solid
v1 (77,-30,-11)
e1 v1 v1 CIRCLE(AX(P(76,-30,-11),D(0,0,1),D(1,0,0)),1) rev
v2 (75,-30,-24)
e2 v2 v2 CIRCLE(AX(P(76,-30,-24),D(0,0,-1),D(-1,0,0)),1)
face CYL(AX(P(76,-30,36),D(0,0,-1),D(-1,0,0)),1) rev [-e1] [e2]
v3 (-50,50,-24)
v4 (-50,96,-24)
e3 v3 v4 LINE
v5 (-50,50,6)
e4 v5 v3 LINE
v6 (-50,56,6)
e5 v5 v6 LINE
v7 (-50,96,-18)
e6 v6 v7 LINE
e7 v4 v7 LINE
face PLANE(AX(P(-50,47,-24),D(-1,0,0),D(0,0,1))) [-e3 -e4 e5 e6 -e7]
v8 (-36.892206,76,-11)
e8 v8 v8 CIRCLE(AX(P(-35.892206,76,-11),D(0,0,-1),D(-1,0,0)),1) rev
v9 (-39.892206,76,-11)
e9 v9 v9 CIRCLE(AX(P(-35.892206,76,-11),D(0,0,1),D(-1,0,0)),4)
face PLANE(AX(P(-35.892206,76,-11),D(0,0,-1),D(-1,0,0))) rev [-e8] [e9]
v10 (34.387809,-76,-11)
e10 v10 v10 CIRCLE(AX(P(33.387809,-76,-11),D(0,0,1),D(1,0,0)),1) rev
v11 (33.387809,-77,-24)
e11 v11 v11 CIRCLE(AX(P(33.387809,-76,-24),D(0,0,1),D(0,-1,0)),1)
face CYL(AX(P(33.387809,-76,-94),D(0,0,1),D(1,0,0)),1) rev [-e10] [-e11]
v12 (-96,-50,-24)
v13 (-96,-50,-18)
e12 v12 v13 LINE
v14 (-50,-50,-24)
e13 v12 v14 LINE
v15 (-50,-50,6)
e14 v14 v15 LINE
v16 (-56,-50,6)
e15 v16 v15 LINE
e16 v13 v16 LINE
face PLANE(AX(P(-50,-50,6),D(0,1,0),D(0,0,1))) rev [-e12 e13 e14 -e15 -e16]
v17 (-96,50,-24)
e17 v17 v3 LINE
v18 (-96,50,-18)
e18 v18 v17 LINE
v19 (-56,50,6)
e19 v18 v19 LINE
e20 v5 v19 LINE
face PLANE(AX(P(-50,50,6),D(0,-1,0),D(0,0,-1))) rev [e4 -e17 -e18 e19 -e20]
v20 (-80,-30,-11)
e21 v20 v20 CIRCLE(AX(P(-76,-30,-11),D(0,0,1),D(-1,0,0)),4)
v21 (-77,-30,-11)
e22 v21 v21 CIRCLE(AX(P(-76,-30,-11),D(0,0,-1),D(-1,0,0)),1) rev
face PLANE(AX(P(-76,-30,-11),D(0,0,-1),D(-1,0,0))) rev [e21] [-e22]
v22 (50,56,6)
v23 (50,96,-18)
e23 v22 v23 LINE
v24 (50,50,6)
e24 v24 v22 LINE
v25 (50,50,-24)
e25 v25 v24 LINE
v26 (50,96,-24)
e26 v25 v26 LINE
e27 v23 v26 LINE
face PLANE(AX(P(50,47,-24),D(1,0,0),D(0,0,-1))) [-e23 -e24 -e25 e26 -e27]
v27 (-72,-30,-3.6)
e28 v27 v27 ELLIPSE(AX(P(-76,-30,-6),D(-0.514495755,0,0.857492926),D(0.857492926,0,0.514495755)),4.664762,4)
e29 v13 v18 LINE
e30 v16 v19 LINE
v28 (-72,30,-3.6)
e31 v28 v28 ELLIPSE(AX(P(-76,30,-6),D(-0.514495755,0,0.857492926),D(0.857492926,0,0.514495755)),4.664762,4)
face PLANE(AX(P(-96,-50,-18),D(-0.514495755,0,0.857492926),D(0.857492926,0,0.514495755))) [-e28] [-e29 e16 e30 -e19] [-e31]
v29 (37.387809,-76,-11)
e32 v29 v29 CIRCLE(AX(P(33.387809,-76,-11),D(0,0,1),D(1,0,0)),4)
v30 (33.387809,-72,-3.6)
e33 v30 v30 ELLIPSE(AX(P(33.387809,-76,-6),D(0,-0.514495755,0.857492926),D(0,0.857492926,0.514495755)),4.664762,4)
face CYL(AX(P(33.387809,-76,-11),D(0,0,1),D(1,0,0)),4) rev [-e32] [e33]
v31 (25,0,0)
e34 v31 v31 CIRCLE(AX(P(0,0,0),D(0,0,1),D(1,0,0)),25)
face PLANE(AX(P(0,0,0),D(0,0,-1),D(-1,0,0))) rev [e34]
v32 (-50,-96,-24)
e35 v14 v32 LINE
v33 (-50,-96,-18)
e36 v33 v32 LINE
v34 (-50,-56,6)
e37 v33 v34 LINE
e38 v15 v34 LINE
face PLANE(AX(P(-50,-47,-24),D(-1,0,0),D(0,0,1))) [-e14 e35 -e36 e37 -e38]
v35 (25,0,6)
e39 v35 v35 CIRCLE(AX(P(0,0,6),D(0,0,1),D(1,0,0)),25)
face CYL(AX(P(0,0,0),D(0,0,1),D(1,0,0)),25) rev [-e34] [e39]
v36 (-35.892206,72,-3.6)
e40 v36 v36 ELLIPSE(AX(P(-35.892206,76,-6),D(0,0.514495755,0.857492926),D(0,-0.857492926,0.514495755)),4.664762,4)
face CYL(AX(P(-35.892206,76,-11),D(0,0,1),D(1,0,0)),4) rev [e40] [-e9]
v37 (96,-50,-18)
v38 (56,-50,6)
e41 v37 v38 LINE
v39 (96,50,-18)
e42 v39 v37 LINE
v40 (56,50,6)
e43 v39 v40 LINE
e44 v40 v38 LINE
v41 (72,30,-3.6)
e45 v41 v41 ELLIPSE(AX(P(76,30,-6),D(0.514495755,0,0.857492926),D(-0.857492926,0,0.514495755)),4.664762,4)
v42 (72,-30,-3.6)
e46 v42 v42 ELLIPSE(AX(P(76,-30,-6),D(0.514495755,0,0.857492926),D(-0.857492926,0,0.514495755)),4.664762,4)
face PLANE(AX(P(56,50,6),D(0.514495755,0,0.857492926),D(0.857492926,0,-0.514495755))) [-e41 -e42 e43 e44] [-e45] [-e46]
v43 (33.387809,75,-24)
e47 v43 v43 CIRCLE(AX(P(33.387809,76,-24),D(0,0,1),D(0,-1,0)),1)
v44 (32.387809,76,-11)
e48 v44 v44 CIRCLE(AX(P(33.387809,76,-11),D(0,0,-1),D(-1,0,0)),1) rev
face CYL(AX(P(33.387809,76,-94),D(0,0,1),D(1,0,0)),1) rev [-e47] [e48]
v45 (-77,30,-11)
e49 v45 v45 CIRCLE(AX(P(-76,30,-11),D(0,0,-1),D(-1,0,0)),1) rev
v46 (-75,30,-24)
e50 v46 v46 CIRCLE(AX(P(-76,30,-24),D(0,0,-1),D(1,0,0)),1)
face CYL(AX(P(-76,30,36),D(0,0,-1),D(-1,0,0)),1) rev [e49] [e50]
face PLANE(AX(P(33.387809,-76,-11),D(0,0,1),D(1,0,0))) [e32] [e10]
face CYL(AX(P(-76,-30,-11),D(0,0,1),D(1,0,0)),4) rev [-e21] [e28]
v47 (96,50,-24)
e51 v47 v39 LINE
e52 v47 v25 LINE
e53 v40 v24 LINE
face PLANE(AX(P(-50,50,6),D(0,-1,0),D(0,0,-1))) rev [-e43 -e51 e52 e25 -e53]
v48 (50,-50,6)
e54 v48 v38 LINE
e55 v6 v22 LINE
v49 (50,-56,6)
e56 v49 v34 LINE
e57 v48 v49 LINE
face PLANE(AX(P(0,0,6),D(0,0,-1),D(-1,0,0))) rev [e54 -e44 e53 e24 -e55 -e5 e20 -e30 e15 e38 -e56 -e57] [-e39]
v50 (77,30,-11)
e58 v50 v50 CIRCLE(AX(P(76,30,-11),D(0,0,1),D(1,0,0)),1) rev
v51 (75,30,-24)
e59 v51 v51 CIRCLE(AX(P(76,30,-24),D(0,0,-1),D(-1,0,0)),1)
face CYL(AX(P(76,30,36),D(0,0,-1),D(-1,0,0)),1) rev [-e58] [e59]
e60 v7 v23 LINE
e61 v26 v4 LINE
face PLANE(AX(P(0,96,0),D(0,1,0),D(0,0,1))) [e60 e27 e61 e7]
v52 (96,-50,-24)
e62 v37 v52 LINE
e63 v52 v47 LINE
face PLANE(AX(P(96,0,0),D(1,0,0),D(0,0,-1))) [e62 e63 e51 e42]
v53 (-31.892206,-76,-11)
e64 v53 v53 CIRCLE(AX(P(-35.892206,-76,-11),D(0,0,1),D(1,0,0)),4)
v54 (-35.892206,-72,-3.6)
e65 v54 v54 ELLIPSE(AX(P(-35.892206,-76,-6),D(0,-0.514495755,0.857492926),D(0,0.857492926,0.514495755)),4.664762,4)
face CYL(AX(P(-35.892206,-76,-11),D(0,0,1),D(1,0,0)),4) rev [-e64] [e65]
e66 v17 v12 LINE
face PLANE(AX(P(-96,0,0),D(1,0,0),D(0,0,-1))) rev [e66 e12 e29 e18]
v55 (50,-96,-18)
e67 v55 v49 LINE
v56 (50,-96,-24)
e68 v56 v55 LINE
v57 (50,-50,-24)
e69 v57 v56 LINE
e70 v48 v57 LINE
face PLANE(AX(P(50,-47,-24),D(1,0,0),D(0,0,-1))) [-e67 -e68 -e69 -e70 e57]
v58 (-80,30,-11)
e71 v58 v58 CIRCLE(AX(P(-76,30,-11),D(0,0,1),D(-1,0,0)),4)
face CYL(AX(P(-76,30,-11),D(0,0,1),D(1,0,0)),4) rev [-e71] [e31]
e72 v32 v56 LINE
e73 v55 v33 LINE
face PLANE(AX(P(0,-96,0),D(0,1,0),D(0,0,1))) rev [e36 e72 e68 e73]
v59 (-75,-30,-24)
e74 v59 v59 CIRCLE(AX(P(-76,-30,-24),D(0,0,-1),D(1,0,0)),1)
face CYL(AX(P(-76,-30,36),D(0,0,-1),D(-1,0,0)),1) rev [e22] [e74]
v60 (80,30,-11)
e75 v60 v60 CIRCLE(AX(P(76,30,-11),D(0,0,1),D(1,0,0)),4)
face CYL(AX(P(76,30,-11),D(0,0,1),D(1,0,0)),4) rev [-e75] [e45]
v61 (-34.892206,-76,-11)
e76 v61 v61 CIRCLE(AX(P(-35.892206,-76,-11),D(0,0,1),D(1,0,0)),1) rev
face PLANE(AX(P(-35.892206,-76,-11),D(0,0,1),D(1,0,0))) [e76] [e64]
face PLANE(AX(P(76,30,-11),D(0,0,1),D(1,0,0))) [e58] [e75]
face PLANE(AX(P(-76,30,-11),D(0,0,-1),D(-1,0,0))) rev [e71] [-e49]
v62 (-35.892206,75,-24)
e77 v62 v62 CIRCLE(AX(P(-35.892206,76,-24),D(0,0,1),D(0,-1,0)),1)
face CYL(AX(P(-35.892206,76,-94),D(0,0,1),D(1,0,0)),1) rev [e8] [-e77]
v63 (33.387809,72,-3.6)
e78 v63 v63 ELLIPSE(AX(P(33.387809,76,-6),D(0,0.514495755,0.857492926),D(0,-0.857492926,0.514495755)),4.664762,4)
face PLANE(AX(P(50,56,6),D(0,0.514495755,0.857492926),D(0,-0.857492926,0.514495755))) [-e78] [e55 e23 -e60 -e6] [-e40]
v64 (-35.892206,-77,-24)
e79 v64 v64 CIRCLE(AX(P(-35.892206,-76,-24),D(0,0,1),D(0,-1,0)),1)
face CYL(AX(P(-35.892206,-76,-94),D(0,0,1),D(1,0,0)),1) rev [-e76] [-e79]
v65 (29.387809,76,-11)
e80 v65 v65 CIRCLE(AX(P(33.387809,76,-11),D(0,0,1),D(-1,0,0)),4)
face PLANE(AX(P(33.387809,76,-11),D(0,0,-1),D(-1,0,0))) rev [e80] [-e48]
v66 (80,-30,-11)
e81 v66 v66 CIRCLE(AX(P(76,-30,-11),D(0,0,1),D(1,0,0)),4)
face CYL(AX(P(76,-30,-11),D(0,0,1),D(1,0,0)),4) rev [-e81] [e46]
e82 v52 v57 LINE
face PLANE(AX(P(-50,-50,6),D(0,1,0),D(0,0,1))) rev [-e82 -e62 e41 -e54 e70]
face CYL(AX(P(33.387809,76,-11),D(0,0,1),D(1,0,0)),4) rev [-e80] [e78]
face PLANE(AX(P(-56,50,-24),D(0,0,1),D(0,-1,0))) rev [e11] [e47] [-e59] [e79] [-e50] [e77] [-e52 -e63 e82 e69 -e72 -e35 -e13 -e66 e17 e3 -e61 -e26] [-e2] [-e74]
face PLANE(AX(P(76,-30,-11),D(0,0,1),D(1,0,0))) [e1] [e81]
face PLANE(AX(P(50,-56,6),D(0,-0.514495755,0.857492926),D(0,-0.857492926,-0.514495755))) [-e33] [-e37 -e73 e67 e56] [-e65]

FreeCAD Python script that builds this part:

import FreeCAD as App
import Part
import Sketcher
Q = App.Units.Quantity

doc = App.newDocument("Part")
body = doc.addObject("PartDesign::Body", "Body")

# Sketch on XY plane
sketch1 = body.newObject("Sketcher::SketchObject", "Sketch")
sketch1.AttachmentSupport = (doc.getObject("XY_Plane"), [""])
sketch1.MapMode = "FlatFace"
sketch1.addGeometry([
    Part.LineSegment(App.Vector(-50, 50, 0), App.Vector(-50, -50, 0)),
    Part.LineSegment(App.Vector(-50, -50, 0), App.Vector(50, -50, 0)),
    Part.LineSegment(App.Vector(50, -50, 0), App.Vector(50, 50, 0)),
    Part.LineSegment(App.Vector(50, 50, 0), App.Vector(-50, 50, 0)),
], False)
sketch1.addConstraint([
    Sketcher.Constraint("Coincident", 0, 2, 1, 1),
    Sketcher.Constraint("Coincident", 1, 2, 2, 1),
    Sketcher.Constraint("Coincident", 2, 2, 3, 1),
    Sketcher.Constraint("Coincident", 3, 2, 0, 1),
    Sketcher.Constraint("Vertical", 0),
    Sketcher.Constraint("Horizontal", 1),
    Sketcher.Constraint("Vertical", 2),
    Sketcher.Constraint("Horizontal", 3),
    Sketcher.Constraint("Symmetric", 0, 2, 2, 2, -1, 1),
    Sketcher.Constraint("Equal", 3, 0),
    Sketcher.Constraint("DistanceX", 1, 1, 1, 2, Q("100 mm")),
])
pad1 = body.newObject("PartDesign::Pad", "Pad")
pad1.Profile = sketch1
pad1.Length = 6

# Sketch on YZ plane
sketch2 = body.newObject("Sketcher::SketchObject", "Sketch001")
sketch2.AttachmentSupport = (doc.getObject("YZ_Plane"), [""])
sketch2.MapMode = "FlatFace"
sketch2.AttachmentOffset = App.Placement(App.Vector(0, 0, -50), App.Rotation())
sketch2.addGeometry([
    Part.LineSegment(App.Vector(50, -24, 0), App.Vector(-50, -24, 0)),
    Part.LineSegment(App.Vector(-50, -24, 0), App.Vector(-50, 6, 0)),
    Part.LineSegment(App.Vector(-50, 6, 0), App.Vector(50, 6, 0)),
    Part.LineSegment(App.Vector(50, 6, 0), App.Vector(50, -24, 0)),
], False)
sketch2.addConstraint([
    Sketcher.Constraint("Coincident", 0, 2, 1, 1),
    Sketcher.Constraint("Coincident", 1, 2, 2, 1),
    Sketcher.Constraint("Coincident", 2, 2, 3, 1),
    Sketcher.Constraint("Coincident", 3, 2, 0, 1),
    Sketcher.Constraint("Horizontal", 0),
    Sketcher.Constraint("Vertical", 1),
    Sketcher.Constraint("Horizontal", 2),
    Sketcher.Constraint("Vertical", 3),
    Sketcher.Constraint("DistanceX", 0, 2, 0, 1, Q("100 mm")),
    Sketcher.Constraint("DistanceY", 1, 1, 1, 2, Q("30 mm")),
    Sketcher.Constraint("DistanceX", 0, 2, -1, 1, Q("50 mm")),
    Sketcher.Constraint("DistanceY", 0, 2, -1, 1, Q("24 mm")),
])
pad2 = body.newObject("PartDesign::Pad", "Pad001")
pad2.Profile = sketch2
pad2.Length = 6
pad2.Reversed = True

# Sketch on YZ plane
sketch3 = body.newObject("Sketcher::SketchObject", "Sketch002")
sketch3.AttachmentSupport = (doc.getObject("YZ_Plane"), [""])
sketch3.MapMode = "FlatFace"
sketch3.AttachmentOffset = App.Placement(App.Vector(0, 0, 50), App.Rotation())
sketch3.addGeometry([
    Part.LineSegment(App.Vector(50, 6, 0), App.Vector(-50, 6, 0)),
    Part.LineSegment(App.Vector(-50, 6, 0), App.Vector(-50, -24, 0)),
    Part.LineSegment(App.Vector(-50, -24, 0), App.Vector(50, -24, 0)),
    Part.LineSegment(App.Vector(50, -24, 0), App.Vector(50, 6, 0)),
], False)
sketch3.addConstraint([
    Sketcher.Constraint("Coincident", 0, 2, 1, 1),
    Sketcher.Constraint("Coincident", 1, 2, 2, 1),
    Sketcher.Constraint("Coincident", 2, 2, 3, 1),
    Sketcher.Constraint("Coincident", 3, 2, 0, 1),
    Sketcher.Constraint("Horizontal", 0),
    Sketcher.Constraint("Vertical", 1),
    Sketcher.Constraint("Horizontal", 2),
    Sketcher.Constraint("Vertical", 3),
    Sketcher.Constraint("DistanceX", 0, 2, 0, 1, Q("100 mm")),
    Sketcher.Constraint("DistanceY", 1, 2, 1, 1, Q("30 mm")),
    Sketcher.Constraint("DistanceX", 0, 2, -1, 1, Q("50 mm")),
    Sketcher.Constraint("DistanceY", -1, 1, 0, 2, Q("6 mm")),
])
pad3 = body.newObject("PartDesign::Pad", "Pad002")
pad3.Profile = sketch3
pad3.Length = 6

# Sketch on YZ plane
sketch4 = body.newObject("Sketcher::SketchObject", "Sketch003")
sketch4.AttachmentSupport = (doc.getObject("YZ_Plane"), [""])
sketch4.MapMode = "FlatFace"
sketch4.AttachmentOffset = App.Placement(App.Vector(0, 0, 56), App.Rotation())
sketch4.addGeometry([
    Part.LineSegment(App.Vector(50, -18, 0), App.Vector(-50, -18, 0)),
    Part.LineSegment(App.Vector(-50, -18, 0), App.Vector(-50, -24, 0)),
    Part.LineSegment(App.Vector(-50, -24, 0), App.Vector(50, -24, 0)),
    Part.LineSegment(App.Vector(50, -24, 0), App.Vector(50, -18, 0)),
], False)
sketch4.addConstraint([
    Sketcher.Constraint("Coincident", 0, 2, 1, 1),
    Sketcher.Constraint("Coincident", 1, 2, 2, 1),
    Sketcher.Constraint("Coincident", 2, 2, 3, 1),
    Sketcher.Constraint("Coincident", 3, 2, 0, 1),
    Sketcher.Constraint("Horizontal", 0),
    Sketcher.Constraint("Vertical", 1),
    Sketcher.Constraint("Horizontal", 2),
    Sketcher.Constraint("Vertical", 3),
    Sketcher.Constraint("DistanceX", 0, 2, 0, 1, Q("100 mm")),
    Sketcher.Constraint("DistanceY", 1, 2, 1, 1, Q("6 mm")),
    Sketcher.Constraint("DistanceX", 0, 2, -1, 1, Q("50 mm")),
    Sketcher.Constraint("DistanceY", 0, 2, -1, 1, Q("18 mm")),
])
pad4 = body.newObject("PartDesign::Pad", "Pad003")
pad4.Profile = sketch4
pad4.Length = 40

# Sketch on YZ plane
sketch5 = body.newObject("Sketcher::SketchObject", "Sketch004")
sketch5.AttachmentSupport = (doc.getObject("YZ_Plane"), [""])
sketch5.MapMode = "FlatFace"
sketch5.AttachmentOffset = App.Placement(App.Vector(0, 0, -56), App.Rotation())
sketch5.addGeometry([
    Part.LineSegment(App.Vector(50, -24, 0), App.Vector(-50, -24, 0)),
    Part.LineSegment(App.Vector(-50, -24, 0), App.Vector(-50, -18, 0)),
    Part.LineSegment(App.Vector(-50, -18, 0), App.Vector(50, -18, 0)),
    Part.LineSegment(App.Vector(50, -18, 0), App.Vector(50, -24, 0)),
], False)
sketch5.addConstraint([
    Sketcher.Constraint("Coincident", 0, 2, 1, 1),
    Sketcher.Constraint("Coincident", 1, 2, 2, 1),
    Sketcher.Constraint("Coincident", 2, 2, 3, 1),
    Sketcher.Constraint("Coincident", 3, 2, 0, 1),
    Sketcher.Constraint("Horizontal", 0),
    Sketcher.Constraint("Vertical", 1),
    Sketcher.Constraint("Horizontal", 2),
    Sketcher.Constraint("Vertical", 3),
    Sketcher.Constraint("DistanceX", 0, 2, 0, 1, Q("100 mm")),
    Sketcher.Constraint("DistanceY", 1, 1, 1, 2, Q("6 mm")),
    Sketcher.Constraint("DistanceX", 0, 2, -1, 1, Q("50 mm")),
    Sketcher.Constraint("DistanceY", 0, 2, -1, 1, Q("24 mm")),
])
pad5 = body.newObject("PartDesign::Pad", "Pad004")
pad5.Profile = sketch5
pad5.Length = 40
pad5.Reversed = True

# Sketch on XZ plane
sketch6 = body.newObject("Sketcher::SketchObject", "Sketch005")
sketch6.AttachmentSupport = (doc.getObject("XZ_Plane"), [""])
sketch6.MapMode = "FlatFace"
sketch6.AttachmentOffset = App.Placement(App.Vector(0, 0, -50), App.Rotation())
sketch6.addGeometry([
    Part.LineSegment(App.Vector(-56, 6, 0), App.Vector(-56, -18, 0)),
    Part.LineSegment(App.Vector(-56, -18, 0), App.Vector(-96, -18, 0)),
    Part.LineSegment(App.Vector(-96, -18, 0), App.Vector(-56, 6, 0)),
], False)
sketch6.addConstraint([
    Sketcher.Constraint("Coincident", 0, 2, 1, 1),
    Sketcher.Constraint("Coincident", 1, 2, 2, 1),
    Sketcher.Constraint("Coincident", 2, 2, 0, 1),
    Sketcher.Constraint("Vertical", 0),
    Sketcher.Constraint("Horizontal", 1),
    Sketcher.Constraint("DistanceX", 1, 2, 1, 1, Q("40 mm")),
    Sketcher.Constraint("DistanceY", 0, 2, 0, 1, Q("24 mm")),
    Sketcher.Constraint("DistanceX", 0, 2, -1, 1, Q("56 mm")),
    Sketcher.Constraint("DistanceY", 0, 2, -1, 1, Q("18 mm")),
])
pad6 = body.newObject("PartDesign::Pad", "Pad005")
pad6.Profile = sketch6
pad6.Length = 100

# Sketch on XZ plane
sketch7 = body.newObject("Sketcher::SketchObject", "Sketch006")
sketch7.AttachmentSupport = (doc.getObject("XZ_Plane"), [""])
sketch7.MapMode = "FlatFace"
sketch7.AttachmentOffset = App.Placement(App.Vector(0, 0, 50), App.Rotation())
sketch7.addGeometry([
    Part.LineSegment(App.Vector(96, -18, 0), App.Vector(56, 6, 0)),
    Part.LineSegment(App.Vector(56, 6, 0), App.Vector(56, -18, 0)),
    Part.LineSegment(App.Vector(56, -18, 0), App.Vector(96, -18, 0)),
], False)
sketch7.addConstraint([
    Sketcher.Constraint("Coincident", 0, 2, 1, 1),
    Sketcher.Constraint("Coincident", 1, 2, 2, 1),
    Sketcher.Constraint("Coincident", 2, 2, 0, 1),
    Sketcher.Constraint("Vertical", 1),
    Sketcher.Constraint("Horizontal", 2),
    Sketcher.Constraint("DistanceX", 2, 1, 2, 2, Q("40 mm")),
    Sketcher.Constraint("DistanceY", 1, 2, 1, 1, Q("24 mm")),
    Sketcher.Constraint("DistanceX", -1, 1, 0, 2, Q("56 mm")),
    Sketcher.Constraint("DistanceY", -1, 1, 0, 2, Q("6 mm")),
])
pad7 = body.newObject("PartDesign::Pad", "Pad006")
pad7.Profile = sketch7
pad7.Length = 100
pad7.Reversed = True

# Sketch on XY plane
sketch8 = body.newObject("Sketcher::SketchObject", "Sketch007")
sketch8.AttachmentSupport = (doc.getObject("XY_Plane"), [""])
sketch8.MapMode = "FlatFace"
sketch8.AttachmentOffset = App.Placement(App.Vector(0, 0, -24), App.Rotation())
sketch8.addGeometry([
    Part.Circle(App.Vector(76, 30, 0), App.Vector(0, 0, 1), 1),
    Part.Circle(App.Vector(76, -30, 0), App.Vector(0, 0, 1), 1),
    Part.Circle(App.Vector(-76, -30, 0), App.Vector(0, 0, 1), 1),
    Part.Circle(App.Vector(-76, 30, 0), App.Vector(0, 0, 1), 1),
], False)
sketch8.addConstraint([
    Sketcher.Constraint("Equal", 0, 1),
    Sketcher.Constraint("Equal", 1, 2),
    Sketcher.Constraint("Equal", 2, 3),
    Sketcher.Constraint("Symmetric", 0, 3, 2, 3, -1, 1),
    Sketcher.Constraint("Symmetric", 1, 3, 3, 3, -1, 1),
    Sketcher.Constraint("Symmetric", 1, 3, 2, 3, -2),
    Sketcher.Constraint("Diameter", 0, Q("2 mm")),
    Sketcher.Constraint("DistanceX", -1, 1, 0, 3, Q("76 mm")),
    Sketcher.Constraint("DistanceY", -1, 1, 0, 3, Q("30 mm")),
])
pocket1 = body.newObject("PartDesign::Pocket", "Pocket")
pocket1.Profile = sketch8
pocket1.Length = 60
pocket1.Reversed = True

# Sketch on XY plane
sketch9 = body.newObject("Sketcher::SketchObject", "Sketch008")
sketch9.AttachmentSupport = (doc.getObject("XY_Plane"), [""])
sketch9.MapMode = "FlatFace"
sketch9.AttachmentOffset = App.Placement(App.Vector(0, 0, 6), App.Rotation())
sketch9.addGeometry([
    Part.Circle(App.Vector(76, 30, 0), App.Vector(0, 0, 1), 4),
    Part.Circle(App.Vector(76, -30, 0), App.Vector(0, 0, 1), 4),
    Part.Circle(App.Vector(-76, -30, 0), App.Vector(0, 0, 1), 4),
    Part.Circle(App.Vector(-76, 30, 0), App.Vector(0, 0, 1), 4),
], False)
sketch9.addConstraint([
    Sketcher.Constraint("Equal", 0, 1),
    Sketcher.Constraint("Equal", 1, 2),
    Sketcher.Constraint("Equal", 2, 3),
    Sketcher.Constraint("Symmetric", 0, 3, 2, 3, -1, 1),
    Sketcher.Constraint("Symmetric", 1, 3, 3, 3, -1, 1),
    Sketcher.Constraint("Symmetric", 1, 3, 2, 3, -2),
    Sketcher.Constraint("Diameter", 0, Q("8 mm")),
    Sketcher.Constraint("DistanceX", -1, 1, 0, 3, Q("76 mm")),
    Sketcher.Constraint("DistanceY", -1, 1, 0, 3, Q("30 mm")),
])
pocket2 = body.newObject("PartDesign::Pocket", "Pocket001")
pocket2.Profile = sketch9
pocket2.Length = 17

# Sketch on XZ plane
sketch10 = body.newObject("Sketcher::SketchObject", "Sketch009")
sketch10.AttachmentSupport = (doc.getObject("XZ_Plane"), [""])
sketch10.MapMode = "FlatFace"
sketch10.AttachmentOffset = App.Placement(App.Vector(0, 0, 50), App.Rotation())
sketch10.addGeometry([
    Part.LineSegment(App.Vector(50, -24, 0), App.Vector(50, 6, 0)),
    Part.LineSegment(App.Vector(50, 6, 0), App.Vector(-50, 6, 0)),
    Part.LineSegment(App.Vector(-50, 6, 0), App.Vector(-50, -24, 0)),
    Part.LineSegment(App.Vector(-50, -24, 0), App.Vector(50, -24, 0)),
], False)
sketch10.addConstraint([
    Sketcher.Constraint("Coincident", 0, 2, 1, 1),
    Sketcher.Constraint("Coincident", 1, 2, 2, 1),
    Sketcher.Constraint("Coincident", 2, 2, 3, 1),
    Sketcher.Constraint("Coincident", 3, 2, 0, 1),
    Sketcher.Constraint("Vertical", 0),
    Sketcher.Constraint("Horizontal", 1),
    Sketcher.Constraint("Vertical", 2),
    Sketcher.Constraint("Horizontal", 3),
    Sketcher.Constraint("DistanceX", 1, 2, 1, 1, Q("100 mm")),
    Sketcher.Constraint("DistanceY", 0, 1, 0, 2, Q("30 mm")),
    Sketcher.Constraint("DistanceX", -1, 1, 0, 2, Q("50 mm")),
    Sketcher.Constraint("DistanceY", -1, 1, 0, 2, Q("6 mm")),
])
pad8 = body.newObject("PartDesign::Pad", "Pad007")
pad8.Profile = sketch10
pad8.Type = "TwoLengths"
pad8.Length = 6
pad8.Length2 = 3

# Sketch on XZ plane
sketch11 = body.newObject("Sketcher::SketchObject", "Sketch010")
sketch11.AttachmentSupport = (doc.getObject("XZ_Plane"), [""])
sketch11.MapMode = "FlatFace"
sketch11.AttachmentOffset = App.Placement(App.Vector(0, 0, 56), App.Rotation())
sketch11.addGeometry([
    Part.LineSegment(App.Vector(50, -24, 0), App.Vector(50, -18, 0)),
    Part.LineSegment(App.Vector(50, -18, 0), App.Vector(-50, -18, 0)),
    Part.LineSegment(App.Vector(-50, -18, 0), App.Vector(-50, -24, 0)),
    Part.LineSegment(App.Vector(-50, -24, 0), App.Vector(50, -24, 0)),
], False)
sketch11.addConstraint([
    Sketcher.Constraint("Coincident", 0, 2, 1, 1),
    Sketcher.Constraint("Coincident", 1, 2, 2, 1),
    Sketcher.Constraint("Coincident", 2, 2, 3, 1),
    Sketcher.Constraint("Coincident", 3, 2, 0, 1),
    Sketcher.Constraint("Vertical", 0),
    Sketcher.Constraint("Horizontal", 1),
    Sketcher.Constraint("Vertical", 2),
    Sketcher.Constraint("Horizontal", 3),
    Sketcher.Constraint("DistanceX", 1, 2, 1, 1, Q("100 mm")),
    Sketcher.Constraint("DistanceY", 0, 1, 0, 2, Q("6 mm")),
    Sketcher.Constraint("DistanceX", -1, 1, 0, 2, Q("50 mm")),
    Sketcher.Constraint("DistanceY", 0, 2, -1, 1, Q("18 mm")),
])
pad9 = body.newObject("PartDesign::Pad", "Pad008")
pad9.Profile = sketch11
pad9.Length = 40

# Sketch on XZ plane
sketch12 = body.newObject("Sketcher::SketchObject", "Sketch011")
sketch12.AttachmentSupport = (doc.getObject("XZ_Plane"), [""])
sketch12.MapMode = "FlatFace"
sketch12.AttachmentOffset = App.Placement(App.Vector(0, 0, -50), App.Rotation())
sketch12.addGeometry([
    Part.LineSegment(App.Vector(-50, -24, 0), App.Vector(-50, 6, 0)),
    Part.LineSegment(App.Vector(-50, 6, 0), App.Vector(50, 6, 0)),
    Part.LineSegment(App.Vector(50, 6, 0), App.Vector(50, -24, 0)),
    Part.LineSegment(App.Vector(50, -24, 0), App.Vector(-50, -24, 0)),
], False)
sketch12.addConstraint([
    Sketcher.Constraint("Coincident", 0, 2, 1, 1),
    Sketcher.Constraint("Coincident", 1, 2, 2, 1),
    Sketcher.Constraint("Coincident", 2, 2, 3, 1),
    Sketcher.Constraint("Coincident", 3, 2, 0, 1),
    Sketcher.Constraint("Vertical", 0),
    Sketcher.Constraint("Horizontal", 1),
    Sketcher.Constraint("Vertical", 2),
    Sketcher.Constraint("Horizontal", 3),
    Sketcher.Constraint("DistanceX", 1, 1, 1, 2, Q("100 mm")),
    Sketcher.Constraint("DistanceY", 0, 1, 0, 2, Q("30 mm")),
    Sketcher.Constraint("DistanceX", 0, 2, -1, 1, Q("50 mm")),
    Sketcher.Constraint("DistanceY", -1, 1, 0, 2, Q("6 mm")),
])
pad10 = body.newObject("PartDesign::Pad", "Pad009")
pad10.Profile = sketch12
pad10.Type = "TwoLengths"
pad10.Length = 6
pad10.Length2 = 3
pad10.Reversed = True

# Sketch on XZ plane
sketch13 = body.newObject("Sketcher::SketchObject", "Sketch012")
sketch13.AttachmentSupport = (doc.getObject("XZ_Plane"), [""])
sketch13.MapMode = "FlatFace"
sketch13.AttachmentOffset = App.Placement(App.Vector(0, 0, -56), App.Rotation())
sketch13.addGeometry([
    Part.LineSegment(App.Vector(-50, -24, 0), App.Vector(-50, -18, 0)),
    Part.LineSegment(App.Vector(-50, -18, 0), App.Vector(50, -18, 0)),
    Part.LineSegment(App.Vector(50, -18, 0), App.Vector(50, -24, 0)),
    Part.LineSegment(App.Vector(50, -24, 0), App.Vector(-50, -24, 0)),
], False)
sketch13.addConstraint([
    Sketcher.Constraint("Coincident", 0, 2, 1, 1),
    Sketcher.Constraint("Coincident", 1, 2, 2, 1),
    Sketcher.Constraint("Coincident", 2, 2, 3, 1),
    Sketcher.Constraint("Coincident", 3, 2, 0, 1),
    Sketcher.Constraint("Vertical", 0),
    Sketcher.Constraint("Horizontal", 1),
    Sketcher.Constraint("Vertical", 2),
    Sketcher.Constraint("Horizontal", 3),
    Sketcher.Constraint("DistanceX", 1, 1, 1, 2, Q("100 mm")),
    Sketcher.Constraint("DistanceY", 0, 1, 0, 2, Q("6 mm")),
    Sketcher.Constraint("DistanceX", 0, 2, -1, 1, Q("50 mm")),
    Sketcher.Constraint("DistanceY", 0, 2, -1, 1, Q("18 mm")),
])
pad11 = body.newObject("PartDesign::Pad", "Pad010")
pad11.Profile = sketch13
pad11.Length = 40
pad11.Reversed = True

# Sketch on YZ plane
sketch14 = body.newObject("Sketcher::SketchObject", "Sketch013")
sketch14.AttachmentSupport = (doc.getObject("YZ_Plane"), [""])
sketch14.MapMode = "FlatFace"
sketch14.AttachmentOffset = App.Placement(App.Vector(0, 0, -50), App.Rotation())
sketch14.addGeometry([
    Part.LineSegment(App.Vector(-56, 6, 0), App.Vector(-56, -18, 0)),
    Part.LineSegment(App.Vector(-56, -18, 0), App.Vector(-96, -18, 0)),
    Part.LineSegment(App.Vector(-96, -18, 0), App.Vector(-56, 6, 0)),
], False)
sketch14.addConstraint([
    Sketcher.Constraint("Coincident", 0, 2, 1, 1),
    Sketcher.Constraint("Coincident", 1, 2, 2, 1),
    Sketcher.Constraint("Coincident", 2, 2, 0, 1),
    Sketcher.Constraint("Vertical", 0),
    Sketcher.Constraint("Horizontal", 1),
    Sketcher.Constraint("DistanceX", 1, 2, 1, 1, Q("40 mm")),
    Sketcher.Constraint("DistanceY", 0, 2, 0, 1, Q("24 mm")),
    Sketcher.Constraint("DistanceX", 0, 2, -1, 1, Q("56 mm")),
    Sketcher.Constraint("DistanceY", 0, 2, -1, 1, Q("18 mm")),
])
pad12 = body.newObject("PartDesign::Pad", "Pad011")
pad12.Profile = sketch14
pad12.Length = 100

# Sketch on YZ plane
sketch15 = body.newObject("Sketcher::SketchObject", "Sketch014")
sketch15.AttachmentSupport = (doc.getObject("YZ_Plane"), [""])
sketch15.MapMode = "FlatFace"
sketch15.AttachmentOffset = App.Placement(App.Vector(0, 0, -50), App.Rotation())
sketch15.addGeometry([
    Part.LineSegment(App.Vector(56, -18, 0), App.Vector(56, 6, 0)),
    Part.LineSegment(App.Vector(56, 6, 0), App.Vector(96, -18, 0)),
    Part.LineSegment(App.Vector(96, -18, 0), App.Vector(56, -18, 0)),
], False)
sketch15.addConstraint([
    Sketcher.Constraint("Coincident", 0, 2, 1, 1),
    Sketcher.Constraint("Coincident", 1, 2, 2, 1),
    Sketcher.Constraint("Coincident", 2, 2, 0, 1),
    Sketcher.Constraint("Vertical", 0),
    Sketcher.Constraint("Horizontal", 2),
    Sketcher.Constraint("DistanceX", 2, 2, 2, 1, Q("40 mm")),
    Sketcher.Constraint("DistanceY", 0, 1, 0, 2, Q("24 mm")),
    Sketcher.Constraint("DistanceX", -1, 1, 0, 2, Q("56 mm")),
    Sketcher.Constraint("DistanceY", -1, 1, 0, 2, Q("6 mm")),
])
pad13 = body.newObject("PartDesign::Pad", "Pad012")
pad13.Profile = sketch15
pad13.Length = 100

# Sketch on XY plane
sketch16 = body.newObject("Sketcher::SketchObject", "Sketch015")
sketch16.AttachmentSupport = (doc.getObject("XY_Plane"), [""])
sketch16.MapMode = "FlatFace"
sketch16.AttachmentOffset = App.Placement(App.Vector(0, 0, 6), App.Rotation())
sketch16.addGeometry([
    Part.Circle(App.Vector(-35.892206, -76, 0), App.Vector(0, 0, 1), 1),
    Part.Circle(App.Vector(33.387809, -76, 0), App.Vector(0, 0, 1), 1),
    Part.Circle(App.Vector(33.387809, 76, 0), App.Vector(0, 0, 1), 1),
    Part.Circle(App.Vector(-35.892206, 76, 0), App.Vector(0, 0, 1), 1),
], False)
sketch16.addConstraint([
    Sketcher.Constraint("Equal", 0, 1),
    Sketcher.Constraint("Equal", 1, 2),
    Sketcher.Constraint("Equal", 2, 3),
    Sketcher.Constraint("Symmetric", 1, 3, 2, 3, -1),
    Sketcher.Constraint("Symmetric", 0, 3, 3, 3, -1),
    Sketcher.Constraint("Horizontal", 0, 3, 1, 3),
    Sketcher.Constraint("Diameter", 0, Q("2 mm")),
    Sketcher.Constraint("DistanceY", 0, 3, -1, 1, Q("76 mm")),
    Sketcher.Constraint("DistanceX", -1, 1, 1, 3, Q("33.387809 mm")),
    Sketcher.Constraint("DistanceX", 0, 3, -1, 1, Q("35.892206 mm")),
])
pocket3 = body.newObject("PartDesign::Pocket", "Pocket002")
pocket3.Profile = sketch16
pocket3.Length = 100

# Sketch on XY plane
sketch17 = body.newObject("Sketcher::SketchObject", "Sketch016")
sketch17.AttachmentSupport = (doc.getObject("XY_Plane"), [""])
sketch17.MapMode = "FlatFace"
sketch17.AttachmentOffset = App.Placement(App.Vector(0, 0, 6), App.Rotation())
sketch17.addGeometry([
    Part.Circle(App.Vector(33.387809, -76, 0), App.Vector(0, 0, 1), 4),
    Part.Circle(App.Vector(-35.892206, -76, 0), App.Vector(0, 0, 1), 4),
    Part.Circle(App.Vector(-35.892206, 76, 0), App.Vector(0, 0, 1), 4),
    Part.Circle(App.Vector(33.387809, 76, 0), App.Vector(0, 0, 1), 4),
], False)
sketch17.addConstraint([
    Sketcher.Constraint("Equal", 0, 1),
    Sketcher.Constraint("Equal", 1, 2),
    Sketcher.Constraint("Equal", 2, 3),
    Sketcher.Constraint("Symmetric", 1, 3, 2, 3, -1),
    Sketcher.Constraint("Symmetric", 0, 3, 3, 3, -1),
    Sketcher.Constraint("Horizontal", 0, 3, 1, 3),
    Sketcher.Constraint("Diameter", 0, Q("8 mm")),
    Sketcher.Constraint("DistanceY", 0, 3, -1, 1, Q("76 mm")),
    Sketcher.Constraint("DistanceX", -1, 1, 0, 3, Q("33.387809 mm")),
    Sketcher.Constraint("DistanceX", 1, 3, -1, 1, Q("35.892206 mm")),
])
pocket4 = body.newObject("PartDesign::Pocket", "Pocket003")
pocket4.Profile = sketch17
pocket4.Length = 17

# Sketch on XY plane
sketch18 = body.newObject("Sketcher::SketchObject", "Sketch017")
sketch18.AttachmentSupport = (doc.getObject("XY_Plane"), [""])
sketch18.MapMode = "FlatFace"
sketch18.AttachmentOffset = App.Placement(App.Vector(0, 0, 6), App.Rotation())
sketch18.addGeometry(Part.Circle(App.Vector(0, 0, 0), App.Vector(0, 0, 1), 25), False)
sketch18.addConstraint([
    Sketcher.Constraint("Coincident", 0, 3, -1, 1),
    Sketcher.Constraint("Diameter", 0, Q("50 mm")),
])
pocket5 = body.newObject("PartDesign::Pocket", "Pocket004")
pocket5.Profile = sketch18
pocket5.Length = 6

# Sketch on XY plane
sketch19 = body.newObject("Sketcher::SketchObject", "Sketch018")
sketch19.AttachmentSupport = (doc.getObject("XY_Plane"), [""])
sketch19.MapMode = "FlatFace"
sketch19.AttachmentOffset = App.Placement(App.Vector(0, 0, -24), App.Rotation())
sketch19.addGeometry([
    Part.LineSegment(App.Vector(50, 47.110782, 0), App.Vector(50, -47, 0)),
    Part.LineSegment(App.Vector(50, -47, 0), App.Vector(-50, -47, 0)),
    Part.LineSegment(App.Vector(-50, -47, 0), App.Vector(-50, 47.110782, 0)),
    Part.LineSegment(App.Vector(-50, 47.110782, 0), App.Vector(50, 47.110782, 0)),
], False)
sketch19.addConstraint([
    Sketcher.Constraint("Coincident", 0, 2, 1, 1),
    Sketcher.Constraint("Coincident", 1, 2, 2, 1),
    Sketcher.Constraint("Coincident", 2, 2, 3, 1),
    Sketcher.Constraint("Coincident", 3, 2, 0, 1),
    Sketcher.Constraint("Vertical", 0),
    Sketcher.Constraint("Horizontal", 1),
    Sketcher.Constraint("Vertical", 2),
    Sketcher.Constraint("Horizontal", 3),
    Sketcher.Constraint("DistanceX", 1, 2, 1, 1, Q("100 mm")),
    Sketcher.Constraint("DistanceX", -1, 1, 0, 2, Q("50 mm")),
    Sketcher.Constraint("DistanceY", 0, 2, -1, 1, Q("47 mm")),
    Sketcher.Constraint("DistanceY", 0, 2, 0, 1, Q("94.110782 mm")),
])
pad14 = body.newObject("PartDesign::Pad", "Pad013")
pad14.Profile = sketch19
pad14.Length = 24

doc.recompute()
